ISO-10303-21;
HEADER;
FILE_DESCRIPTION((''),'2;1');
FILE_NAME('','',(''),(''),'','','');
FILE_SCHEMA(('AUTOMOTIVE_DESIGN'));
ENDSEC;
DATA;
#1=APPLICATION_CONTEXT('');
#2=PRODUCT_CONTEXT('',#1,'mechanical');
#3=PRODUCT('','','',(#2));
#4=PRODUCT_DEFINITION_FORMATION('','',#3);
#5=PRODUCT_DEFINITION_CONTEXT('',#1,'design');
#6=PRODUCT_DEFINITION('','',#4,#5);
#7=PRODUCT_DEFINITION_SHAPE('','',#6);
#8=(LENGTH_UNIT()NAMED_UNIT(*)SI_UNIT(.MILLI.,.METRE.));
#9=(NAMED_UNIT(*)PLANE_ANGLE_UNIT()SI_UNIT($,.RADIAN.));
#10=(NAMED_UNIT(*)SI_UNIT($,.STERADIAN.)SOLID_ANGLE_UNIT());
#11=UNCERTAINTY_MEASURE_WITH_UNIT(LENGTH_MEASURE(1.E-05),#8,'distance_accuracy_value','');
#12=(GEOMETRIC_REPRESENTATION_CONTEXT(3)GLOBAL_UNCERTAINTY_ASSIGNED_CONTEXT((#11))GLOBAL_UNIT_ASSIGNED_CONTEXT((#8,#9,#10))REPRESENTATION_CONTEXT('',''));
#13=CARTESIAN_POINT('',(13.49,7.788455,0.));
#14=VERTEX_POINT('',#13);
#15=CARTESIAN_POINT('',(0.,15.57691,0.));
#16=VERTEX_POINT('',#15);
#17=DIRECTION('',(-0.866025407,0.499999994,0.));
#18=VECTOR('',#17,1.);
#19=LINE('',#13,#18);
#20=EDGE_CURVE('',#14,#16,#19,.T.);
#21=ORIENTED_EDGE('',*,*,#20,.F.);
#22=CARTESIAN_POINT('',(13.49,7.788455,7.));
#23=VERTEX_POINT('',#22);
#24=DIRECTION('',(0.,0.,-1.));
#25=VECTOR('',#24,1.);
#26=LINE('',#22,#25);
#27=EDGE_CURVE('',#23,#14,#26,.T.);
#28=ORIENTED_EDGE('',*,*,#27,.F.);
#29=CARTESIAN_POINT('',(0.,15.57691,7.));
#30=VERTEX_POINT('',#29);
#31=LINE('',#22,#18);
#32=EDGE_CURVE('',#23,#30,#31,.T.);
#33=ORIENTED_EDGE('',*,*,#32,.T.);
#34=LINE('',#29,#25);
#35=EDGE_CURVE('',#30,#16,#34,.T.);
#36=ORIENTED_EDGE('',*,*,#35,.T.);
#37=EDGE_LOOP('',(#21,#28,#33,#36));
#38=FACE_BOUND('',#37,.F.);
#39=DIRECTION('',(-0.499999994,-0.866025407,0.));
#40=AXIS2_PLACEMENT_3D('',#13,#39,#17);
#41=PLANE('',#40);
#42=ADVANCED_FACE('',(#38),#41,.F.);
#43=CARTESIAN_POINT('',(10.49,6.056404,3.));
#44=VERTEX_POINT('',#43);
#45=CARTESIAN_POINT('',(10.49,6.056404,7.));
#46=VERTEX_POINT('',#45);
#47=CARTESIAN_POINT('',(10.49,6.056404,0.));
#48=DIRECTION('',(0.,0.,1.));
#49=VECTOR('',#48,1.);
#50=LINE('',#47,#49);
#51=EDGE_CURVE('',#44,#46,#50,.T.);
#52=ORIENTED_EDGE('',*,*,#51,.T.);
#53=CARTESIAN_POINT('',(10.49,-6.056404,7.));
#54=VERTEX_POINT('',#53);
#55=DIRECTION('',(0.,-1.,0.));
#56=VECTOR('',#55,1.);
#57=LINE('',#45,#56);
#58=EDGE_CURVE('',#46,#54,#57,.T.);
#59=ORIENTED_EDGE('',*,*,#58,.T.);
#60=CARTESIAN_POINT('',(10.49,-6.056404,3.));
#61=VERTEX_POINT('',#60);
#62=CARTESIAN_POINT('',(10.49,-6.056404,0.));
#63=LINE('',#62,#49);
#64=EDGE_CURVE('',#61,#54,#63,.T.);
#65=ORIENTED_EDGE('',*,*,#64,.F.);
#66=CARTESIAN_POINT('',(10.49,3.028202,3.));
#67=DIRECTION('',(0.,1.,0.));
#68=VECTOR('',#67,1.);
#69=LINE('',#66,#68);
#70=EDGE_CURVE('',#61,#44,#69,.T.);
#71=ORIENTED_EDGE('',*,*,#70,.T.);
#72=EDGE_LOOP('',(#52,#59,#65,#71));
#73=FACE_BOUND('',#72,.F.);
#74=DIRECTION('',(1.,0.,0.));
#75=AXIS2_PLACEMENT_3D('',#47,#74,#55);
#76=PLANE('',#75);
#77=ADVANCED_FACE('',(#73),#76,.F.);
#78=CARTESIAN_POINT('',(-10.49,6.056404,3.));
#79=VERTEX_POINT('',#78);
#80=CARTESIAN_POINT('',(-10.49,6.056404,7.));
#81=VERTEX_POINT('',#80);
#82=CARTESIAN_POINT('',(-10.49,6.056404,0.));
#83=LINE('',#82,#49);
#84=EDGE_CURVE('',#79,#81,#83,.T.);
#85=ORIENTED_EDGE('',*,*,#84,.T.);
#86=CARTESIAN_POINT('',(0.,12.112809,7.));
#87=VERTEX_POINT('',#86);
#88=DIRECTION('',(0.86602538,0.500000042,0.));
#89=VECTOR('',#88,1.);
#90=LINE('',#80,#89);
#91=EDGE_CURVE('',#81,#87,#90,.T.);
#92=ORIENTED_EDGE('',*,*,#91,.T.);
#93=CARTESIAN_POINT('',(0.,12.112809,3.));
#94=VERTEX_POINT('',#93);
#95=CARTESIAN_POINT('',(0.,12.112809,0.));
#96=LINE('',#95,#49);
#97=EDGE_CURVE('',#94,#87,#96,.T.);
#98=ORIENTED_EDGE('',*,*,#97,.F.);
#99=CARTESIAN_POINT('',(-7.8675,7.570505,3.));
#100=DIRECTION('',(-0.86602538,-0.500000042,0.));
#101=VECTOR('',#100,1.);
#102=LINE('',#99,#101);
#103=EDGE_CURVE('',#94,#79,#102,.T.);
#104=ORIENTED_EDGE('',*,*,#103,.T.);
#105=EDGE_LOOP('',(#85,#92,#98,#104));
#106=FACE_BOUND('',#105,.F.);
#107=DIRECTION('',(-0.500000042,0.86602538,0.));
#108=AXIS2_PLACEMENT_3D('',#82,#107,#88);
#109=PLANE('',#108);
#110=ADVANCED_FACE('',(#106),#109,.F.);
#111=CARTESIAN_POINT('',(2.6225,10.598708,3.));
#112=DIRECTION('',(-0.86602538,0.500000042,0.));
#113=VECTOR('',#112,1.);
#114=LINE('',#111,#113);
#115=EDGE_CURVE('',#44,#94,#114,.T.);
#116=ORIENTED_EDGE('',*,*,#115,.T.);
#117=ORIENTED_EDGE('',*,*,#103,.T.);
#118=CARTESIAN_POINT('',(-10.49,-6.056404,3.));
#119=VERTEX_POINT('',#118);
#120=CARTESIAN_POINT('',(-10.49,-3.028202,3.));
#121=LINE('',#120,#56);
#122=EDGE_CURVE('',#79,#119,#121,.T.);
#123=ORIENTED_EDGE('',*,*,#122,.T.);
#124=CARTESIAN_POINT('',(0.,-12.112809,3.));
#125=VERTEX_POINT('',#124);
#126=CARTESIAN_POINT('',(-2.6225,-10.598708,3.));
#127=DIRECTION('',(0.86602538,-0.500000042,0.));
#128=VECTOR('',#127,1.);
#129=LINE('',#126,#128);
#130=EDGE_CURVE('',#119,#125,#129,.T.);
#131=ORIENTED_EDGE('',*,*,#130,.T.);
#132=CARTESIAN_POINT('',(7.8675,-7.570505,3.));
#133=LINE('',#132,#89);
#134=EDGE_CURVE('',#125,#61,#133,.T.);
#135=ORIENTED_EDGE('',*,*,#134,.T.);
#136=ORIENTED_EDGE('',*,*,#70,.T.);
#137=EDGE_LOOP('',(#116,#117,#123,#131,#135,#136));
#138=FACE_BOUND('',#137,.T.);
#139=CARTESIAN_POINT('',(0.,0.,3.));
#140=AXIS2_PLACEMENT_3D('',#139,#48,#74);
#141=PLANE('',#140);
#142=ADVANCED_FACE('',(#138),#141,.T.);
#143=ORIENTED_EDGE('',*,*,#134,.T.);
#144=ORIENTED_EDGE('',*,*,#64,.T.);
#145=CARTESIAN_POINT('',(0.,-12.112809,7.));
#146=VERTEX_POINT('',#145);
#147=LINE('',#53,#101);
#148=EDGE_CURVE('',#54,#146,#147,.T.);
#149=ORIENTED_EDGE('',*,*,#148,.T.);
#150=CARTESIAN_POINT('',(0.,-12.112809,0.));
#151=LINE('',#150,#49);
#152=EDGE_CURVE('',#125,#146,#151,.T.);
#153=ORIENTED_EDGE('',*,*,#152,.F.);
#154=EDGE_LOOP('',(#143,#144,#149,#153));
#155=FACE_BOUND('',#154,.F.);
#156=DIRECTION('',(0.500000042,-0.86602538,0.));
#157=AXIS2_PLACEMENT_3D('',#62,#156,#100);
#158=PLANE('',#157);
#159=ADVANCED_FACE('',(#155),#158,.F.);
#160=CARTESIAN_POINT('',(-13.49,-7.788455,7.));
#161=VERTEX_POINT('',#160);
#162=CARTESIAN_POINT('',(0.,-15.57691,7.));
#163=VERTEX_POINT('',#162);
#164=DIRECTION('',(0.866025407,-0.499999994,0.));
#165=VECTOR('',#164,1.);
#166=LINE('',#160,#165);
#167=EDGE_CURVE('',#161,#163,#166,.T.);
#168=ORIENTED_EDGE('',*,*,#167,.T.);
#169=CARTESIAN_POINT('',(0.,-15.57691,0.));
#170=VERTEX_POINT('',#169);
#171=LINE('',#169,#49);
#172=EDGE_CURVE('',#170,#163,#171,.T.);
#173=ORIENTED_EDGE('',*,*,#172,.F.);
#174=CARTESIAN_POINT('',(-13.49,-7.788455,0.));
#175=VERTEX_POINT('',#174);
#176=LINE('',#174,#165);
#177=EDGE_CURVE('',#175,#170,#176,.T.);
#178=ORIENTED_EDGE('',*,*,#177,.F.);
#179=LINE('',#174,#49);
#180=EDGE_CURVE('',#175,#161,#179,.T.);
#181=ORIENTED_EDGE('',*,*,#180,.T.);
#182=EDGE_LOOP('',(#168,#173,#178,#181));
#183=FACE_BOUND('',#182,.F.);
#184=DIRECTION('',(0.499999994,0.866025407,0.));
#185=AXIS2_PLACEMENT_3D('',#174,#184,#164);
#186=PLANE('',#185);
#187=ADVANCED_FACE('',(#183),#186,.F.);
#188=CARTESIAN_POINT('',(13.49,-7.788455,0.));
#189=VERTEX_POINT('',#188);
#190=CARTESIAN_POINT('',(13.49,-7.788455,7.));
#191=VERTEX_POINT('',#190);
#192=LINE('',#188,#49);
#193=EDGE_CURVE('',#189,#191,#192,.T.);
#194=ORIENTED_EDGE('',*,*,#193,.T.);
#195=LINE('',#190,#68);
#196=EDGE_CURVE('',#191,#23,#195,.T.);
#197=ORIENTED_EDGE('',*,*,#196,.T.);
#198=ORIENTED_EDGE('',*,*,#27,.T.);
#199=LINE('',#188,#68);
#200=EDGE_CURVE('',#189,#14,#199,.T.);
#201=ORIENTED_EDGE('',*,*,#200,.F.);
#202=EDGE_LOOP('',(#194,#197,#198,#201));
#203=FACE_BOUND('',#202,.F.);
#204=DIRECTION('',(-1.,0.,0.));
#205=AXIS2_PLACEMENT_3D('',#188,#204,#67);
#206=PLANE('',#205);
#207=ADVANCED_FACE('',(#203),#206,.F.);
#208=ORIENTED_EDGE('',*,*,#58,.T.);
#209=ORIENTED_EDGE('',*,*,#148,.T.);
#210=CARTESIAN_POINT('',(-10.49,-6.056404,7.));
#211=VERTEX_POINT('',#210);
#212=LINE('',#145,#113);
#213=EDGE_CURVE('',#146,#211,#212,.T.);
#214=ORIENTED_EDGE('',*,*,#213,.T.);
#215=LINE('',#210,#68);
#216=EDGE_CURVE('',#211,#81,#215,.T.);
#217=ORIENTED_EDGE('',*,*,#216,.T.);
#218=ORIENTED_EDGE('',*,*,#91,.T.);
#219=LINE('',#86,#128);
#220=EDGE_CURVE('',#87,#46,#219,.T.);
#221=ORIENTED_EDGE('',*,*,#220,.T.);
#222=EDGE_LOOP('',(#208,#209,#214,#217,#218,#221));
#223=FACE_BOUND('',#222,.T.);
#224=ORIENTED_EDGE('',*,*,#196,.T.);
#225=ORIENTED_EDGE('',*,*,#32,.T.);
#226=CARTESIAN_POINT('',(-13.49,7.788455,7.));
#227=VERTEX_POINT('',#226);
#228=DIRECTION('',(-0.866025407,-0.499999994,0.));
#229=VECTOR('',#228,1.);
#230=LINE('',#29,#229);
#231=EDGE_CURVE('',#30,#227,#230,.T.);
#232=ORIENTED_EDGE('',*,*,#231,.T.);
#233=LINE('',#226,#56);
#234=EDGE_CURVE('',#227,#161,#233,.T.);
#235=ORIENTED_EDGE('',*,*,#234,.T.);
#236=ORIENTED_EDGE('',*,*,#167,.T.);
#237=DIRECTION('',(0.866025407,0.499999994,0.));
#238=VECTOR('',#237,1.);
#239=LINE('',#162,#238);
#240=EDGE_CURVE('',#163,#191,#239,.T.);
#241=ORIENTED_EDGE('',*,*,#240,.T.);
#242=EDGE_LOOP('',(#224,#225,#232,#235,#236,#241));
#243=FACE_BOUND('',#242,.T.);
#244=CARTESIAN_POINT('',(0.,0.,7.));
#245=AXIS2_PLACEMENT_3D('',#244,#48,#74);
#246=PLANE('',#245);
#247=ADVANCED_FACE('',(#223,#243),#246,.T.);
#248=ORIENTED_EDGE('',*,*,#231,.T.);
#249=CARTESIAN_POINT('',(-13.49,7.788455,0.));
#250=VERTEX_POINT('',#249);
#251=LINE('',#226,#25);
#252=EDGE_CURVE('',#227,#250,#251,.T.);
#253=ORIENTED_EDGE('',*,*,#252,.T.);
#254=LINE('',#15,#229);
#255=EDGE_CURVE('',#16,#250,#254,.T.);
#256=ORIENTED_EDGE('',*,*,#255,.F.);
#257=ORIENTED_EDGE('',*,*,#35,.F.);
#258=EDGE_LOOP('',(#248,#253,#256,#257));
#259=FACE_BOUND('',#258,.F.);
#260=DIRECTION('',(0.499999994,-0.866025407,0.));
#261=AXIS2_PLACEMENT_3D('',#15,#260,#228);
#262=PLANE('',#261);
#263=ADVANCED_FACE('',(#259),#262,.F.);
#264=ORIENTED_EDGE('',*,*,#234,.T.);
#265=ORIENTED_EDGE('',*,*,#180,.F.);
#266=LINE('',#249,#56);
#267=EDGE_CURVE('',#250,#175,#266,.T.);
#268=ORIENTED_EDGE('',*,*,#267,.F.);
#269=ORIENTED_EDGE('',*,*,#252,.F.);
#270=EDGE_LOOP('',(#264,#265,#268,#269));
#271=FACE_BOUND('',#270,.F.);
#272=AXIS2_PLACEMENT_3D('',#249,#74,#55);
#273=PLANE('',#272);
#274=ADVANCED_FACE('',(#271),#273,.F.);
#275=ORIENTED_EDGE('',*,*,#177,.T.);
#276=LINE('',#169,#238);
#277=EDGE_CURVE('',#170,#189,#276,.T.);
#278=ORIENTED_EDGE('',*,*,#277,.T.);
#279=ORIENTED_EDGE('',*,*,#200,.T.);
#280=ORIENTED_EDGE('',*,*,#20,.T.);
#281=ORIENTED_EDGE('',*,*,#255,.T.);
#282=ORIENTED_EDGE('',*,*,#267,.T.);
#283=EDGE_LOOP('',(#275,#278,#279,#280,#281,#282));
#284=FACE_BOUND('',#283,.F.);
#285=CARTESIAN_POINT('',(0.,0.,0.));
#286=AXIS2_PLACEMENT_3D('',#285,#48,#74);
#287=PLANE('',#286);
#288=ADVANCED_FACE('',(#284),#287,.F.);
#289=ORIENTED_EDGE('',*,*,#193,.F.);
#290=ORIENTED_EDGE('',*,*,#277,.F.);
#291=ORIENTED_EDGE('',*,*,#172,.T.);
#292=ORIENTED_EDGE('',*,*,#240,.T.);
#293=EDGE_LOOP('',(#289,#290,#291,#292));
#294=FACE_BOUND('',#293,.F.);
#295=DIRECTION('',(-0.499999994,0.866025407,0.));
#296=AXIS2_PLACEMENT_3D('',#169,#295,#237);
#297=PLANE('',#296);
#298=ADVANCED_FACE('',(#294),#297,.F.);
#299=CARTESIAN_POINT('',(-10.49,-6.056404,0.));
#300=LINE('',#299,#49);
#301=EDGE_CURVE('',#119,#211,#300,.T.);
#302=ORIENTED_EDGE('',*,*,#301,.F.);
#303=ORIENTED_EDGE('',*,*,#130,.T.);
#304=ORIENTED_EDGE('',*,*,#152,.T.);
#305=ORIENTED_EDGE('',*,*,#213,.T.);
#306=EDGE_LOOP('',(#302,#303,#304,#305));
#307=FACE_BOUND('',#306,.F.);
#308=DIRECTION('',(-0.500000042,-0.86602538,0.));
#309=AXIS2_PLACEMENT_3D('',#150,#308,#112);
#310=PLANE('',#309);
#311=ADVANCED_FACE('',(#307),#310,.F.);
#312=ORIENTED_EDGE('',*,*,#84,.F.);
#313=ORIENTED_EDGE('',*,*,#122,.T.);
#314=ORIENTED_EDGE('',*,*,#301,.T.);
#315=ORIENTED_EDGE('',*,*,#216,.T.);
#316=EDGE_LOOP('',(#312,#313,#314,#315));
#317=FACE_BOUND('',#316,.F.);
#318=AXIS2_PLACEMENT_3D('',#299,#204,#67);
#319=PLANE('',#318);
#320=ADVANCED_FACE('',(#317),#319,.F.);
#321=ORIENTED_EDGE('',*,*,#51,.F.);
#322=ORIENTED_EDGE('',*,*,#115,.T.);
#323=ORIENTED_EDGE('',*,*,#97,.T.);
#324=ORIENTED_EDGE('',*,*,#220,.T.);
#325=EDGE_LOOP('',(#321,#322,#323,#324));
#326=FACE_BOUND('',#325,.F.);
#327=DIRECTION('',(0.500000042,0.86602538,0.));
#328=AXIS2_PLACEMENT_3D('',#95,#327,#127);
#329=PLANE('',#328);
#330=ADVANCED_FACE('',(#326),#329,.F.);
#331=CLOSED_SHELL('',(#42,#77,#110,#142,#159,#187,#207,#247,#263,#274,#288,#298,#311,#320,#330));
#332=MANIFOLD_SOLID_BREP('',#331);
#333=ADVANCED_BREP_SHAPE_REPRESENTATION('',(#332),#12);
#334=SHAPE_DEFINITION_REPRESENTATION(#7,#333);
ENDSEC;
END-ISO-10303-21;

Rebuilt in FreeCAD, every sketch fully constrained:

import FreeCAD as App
import Part
import Sketcher
from FreeCAD import Vector
Q = App.Units.Quantity

doc = App.newDocument("Part")
body = doc.addObject("PartDesign::Body", "Body")

# Sketch on XY plane
sketch1 = doc.addObject("Sketcher::SketchObject", "Sketch")
body.addObject(sketch1)
sketch1.AttachmentSupport = (doc.XY_Plane, [""])
sketch1.MapMode = "FlatFace"
sketch1.addGeometry(Part.LineSegment(Vector(-13, 8, 0), Vector(-13, -8, 0)), False)
sketch1.addGeometry(Part.LineSegment(Vector(-13, -8, 0), Vector(0, -16, 0)), False)
sketch1.addGeometry(Part.LineSegment(Vector(0, -16, 0), Vector(13, -8, 0)), False)
sketch1.addGeometry(Part.LineSegment(Vector(13, -8, 0), Vector(13, 8, 0)), False)
sketch1.addGeometry(Part.LineSegment(Vector(13, 8, 0), Vector(0, 16, 0)), False)
sketch1.addGeometry(Part.LineSegment(Vector(0, 16, 0), Vector(-13, 8, 0)), False)
sketch1.addConstraint(Sketcher.Constraint("Coincident", 0, 2, 1, 1))
sketch1.addConstraint(Sketcher.Constraint("Coincident", 1, 2, 2, 1))
sketch1.addConstraint(Sketcher.Constraint("Coincident", 2, 2, 3, 1))
sketch1.addConstraint(Sketcher.Constraint("Coincident", 3, 2, 4, 1))
sketch1.addConstraint(Sketcher.Constraint("Coincident", 4, 2, 5, 1))
sketch1.addConstraint(Sketcher.Constraint("Coincident", 5, 2, 0, 1))
sketch1.addConstraint(Sketcher.Constraint("Vertical", 0))
sketch1.addConstraint(Sketcher.Constraint("Vertical", 3))
sketch1.addConstraint(Sketcher.Constraint("Symmetric", 0, 2, 3, 2, -1, 1))
sketch1.addConstraint(Sketcher.Constraint("Symmetric", 1, 2, 4, 2, -1, 1))
sketch1.addConstraint(Sketcher.Constraint("PointOnObject", 1, 2, -2))
sketch1.addConstraint(Sketcher.Constraint("Parallel", 2, 5))
sketch1.addConstraint(Sketcher.Constraint("Horizontal", 0, 2, 2, 2))
sketch1.addConstraint(Sketcher.Constraint("Angle", 1, Q("-30 deg")))
sketch1.addConstraint(Sketcher.Constraint("DistanceX", 0, 2, -1, 1, Q("13.49 mm")))
sketch1.addConstraint(Sketcher.Constraint("DistanceY", 0, 2, 0, 1, Q("15.57691 mm")))
pad1 = doc.addObject("PartDesign::Pad", "Pad")
body.addObject(pad1)
pad1.Profile = sketch1
pad1.Length = 3

# Sketch on XY plane
sketch2 = doc.addObject("Sketcher::SketchObject", "Sketch001")
body.addObject(sketch2)
sketch2.AttachmentSupport = (doc.XY_Plane, [""])
sketch2.MapMode = "FlatFace"
sketch2.addGeometry(Part.LineSegment(Vector(-13, 8, 0), Vector(-13, -8, 0)), False)
sketch2.addGeometry(Part.LineSegment(Vector(-13, -8, 0), Vector(0, -16, 0)), False)
sketch2.addGeometry(Part.LineSegment(Vector(0, -16, 0), Vector(13, -8, 0)), False)
sketch2.addGeometry(Part.LineSegment(Vector(13, -8, 0), Vector(13, 8, 0)), False)
sketch2.addGeometry(Part.LineSegment(Vector(13, 8, 0), Vector(0, 16, 0)), False)
sketch2.addGeometry(Part.LineSegment(Vector(0, 16, 0), Vector(-13, 8, 0)), False)
sketch2.addGeometry(Part.LineSegment(Vector(-10, 6, 0), Vector(0, 12, 0)), False)
sketch2.addGeometry(Part.LineSegment(Vector(0, 12, 0), Vector(10, 6, 0)), False)
sketch2.addGeometry(Part.LineSegment(Vector(10, 6, 0), Vector(10, -6, 0)), False)
sketch2.addGeometry(Part.LineSegment(Vector(10, -6, 0), Vector(0, -12, 0)), False)
sketch2.addGeometry(Part.LineSegment(Vector(0, -12, 0), Vector(-10, -6, 0)), False)
sketch2.addGeometry(Part.LineSegment(Vector(-10, -6, 0), Vector(-10, 6, 0)), False)
sketch2.addConstraint(Sketcher.Constraint("Coincident", 0, 2, 1, 1))
sketch2.addConstraint(Sketcher.Constraint("Coincident", 1, 2, 2, 1))
sketch2.addConstraint(Sketcher.Constraint("Coincident", 2, 2, 3, 1))
sketch2.addConstraint(Sketcher.Constraint("Coincident", 3, 2, 4, 1))
sketch2.addConstraint(Sketcher.Constraint("Coincident", 4, 2, 5, 1))
sketch2.addConstraint(Sketcher.Constraint("Coincident", 5, 2, 0, 1))
sketch2.addConstraint(Sketcher.Constraint("Coincident", 6, 2, 7, 1))
sketch2.addConstraint(Sketcher.Constraint("Coincident", 7, 2, 8, 1))
sketch2.addConstraint(Sketcher.Constraint("Coincident", 8, 2, 9, 1))
sketch2.addConstraint(Sketcher.Constraint("Coincident", 9, 2, 10, 1))
sketch2.addConstraint(Sketcher.Constraint("Coincident", 10, 2, 11, 1))
sketch2.addConstraint(Sketcher.Constraint("Coincident", 11, 2, 6, 1))
sketch2.addConstraint(Sketcher.Constraint("Vertical", 0))
sketch2.addConstraint(Sketcher.Constraint("Vertical", 3))
sketch2.addConstraint(Sketcher.Constraint("Vertical", 8))
sketch2.addConstraint(Sketcher.Constraint("Vertical", 11))
sketch2.addConstraint(Sketcher.Constraint("Symmetric", 0, 2, 3, 2, -1, 1))
sketch2.addConstraint(Sketcher.Constraint("Symmetric", 1, 2, 4, 2, -1, 1))
sketch2.addConstraint(Sketcher.Constraint("Symmetric", 6, 2, 9, 2, -1, 1))
sketch2.addConstraint(Sketcher.Constraint("Symmetric", 7, 2, 10, 2, -1, 1))
sketch2.addConstraint(Sketcher.Constraint("PointOnObject", 1, 2, -2))
sketch2.addConstraint(Sketcher.Constraint("PointOnObject", 6, 2, -2))
sketch2.addConstraint(Sketcher.Constraint("Parallel", 2, 5))
sketch2.addConstraint(Sketcher.Constraint("Parallel", 5, 6))
sketch2.addConstraint(Sketcher.Constraint("Parallel", 4, 7))
sketch2.addConstraint(Sketcher.Constraint("Parallel", 6, 9))
sketch2.addConstraint(Sketcher.Constraint("Horizontal", 0, 2, 2, 2))
sketch2.addConstraint(Sketcher.Constraint("Angle", 1, Q("-30 deg")))
sketch2.addConstraint(Sketcher.Constraint("DistanceX", 7, 2, 3, 2, Q("3 mm")))
sketch2.addConstraint(Sketcher.Constraint("DistanceX", 0, 2, -1, 1, Q("13.49 mm")))
sketch2.addConstraint(Sketcher.Constraint("DistanceY", 0, 2, 0, 1, Q("15.57691 mm")))
sketch2.addConstraint(Sketcher.Constraint("DistanceY", 6, 2, 4, 2, Q("3.464101 mm")))
pad2 = doc.addObject("PartDesign::Pad", "Pad001")
body.addObject(pad2)
pad2.Profile = sketch2
pad2.Length = 7

doc.recompute()
